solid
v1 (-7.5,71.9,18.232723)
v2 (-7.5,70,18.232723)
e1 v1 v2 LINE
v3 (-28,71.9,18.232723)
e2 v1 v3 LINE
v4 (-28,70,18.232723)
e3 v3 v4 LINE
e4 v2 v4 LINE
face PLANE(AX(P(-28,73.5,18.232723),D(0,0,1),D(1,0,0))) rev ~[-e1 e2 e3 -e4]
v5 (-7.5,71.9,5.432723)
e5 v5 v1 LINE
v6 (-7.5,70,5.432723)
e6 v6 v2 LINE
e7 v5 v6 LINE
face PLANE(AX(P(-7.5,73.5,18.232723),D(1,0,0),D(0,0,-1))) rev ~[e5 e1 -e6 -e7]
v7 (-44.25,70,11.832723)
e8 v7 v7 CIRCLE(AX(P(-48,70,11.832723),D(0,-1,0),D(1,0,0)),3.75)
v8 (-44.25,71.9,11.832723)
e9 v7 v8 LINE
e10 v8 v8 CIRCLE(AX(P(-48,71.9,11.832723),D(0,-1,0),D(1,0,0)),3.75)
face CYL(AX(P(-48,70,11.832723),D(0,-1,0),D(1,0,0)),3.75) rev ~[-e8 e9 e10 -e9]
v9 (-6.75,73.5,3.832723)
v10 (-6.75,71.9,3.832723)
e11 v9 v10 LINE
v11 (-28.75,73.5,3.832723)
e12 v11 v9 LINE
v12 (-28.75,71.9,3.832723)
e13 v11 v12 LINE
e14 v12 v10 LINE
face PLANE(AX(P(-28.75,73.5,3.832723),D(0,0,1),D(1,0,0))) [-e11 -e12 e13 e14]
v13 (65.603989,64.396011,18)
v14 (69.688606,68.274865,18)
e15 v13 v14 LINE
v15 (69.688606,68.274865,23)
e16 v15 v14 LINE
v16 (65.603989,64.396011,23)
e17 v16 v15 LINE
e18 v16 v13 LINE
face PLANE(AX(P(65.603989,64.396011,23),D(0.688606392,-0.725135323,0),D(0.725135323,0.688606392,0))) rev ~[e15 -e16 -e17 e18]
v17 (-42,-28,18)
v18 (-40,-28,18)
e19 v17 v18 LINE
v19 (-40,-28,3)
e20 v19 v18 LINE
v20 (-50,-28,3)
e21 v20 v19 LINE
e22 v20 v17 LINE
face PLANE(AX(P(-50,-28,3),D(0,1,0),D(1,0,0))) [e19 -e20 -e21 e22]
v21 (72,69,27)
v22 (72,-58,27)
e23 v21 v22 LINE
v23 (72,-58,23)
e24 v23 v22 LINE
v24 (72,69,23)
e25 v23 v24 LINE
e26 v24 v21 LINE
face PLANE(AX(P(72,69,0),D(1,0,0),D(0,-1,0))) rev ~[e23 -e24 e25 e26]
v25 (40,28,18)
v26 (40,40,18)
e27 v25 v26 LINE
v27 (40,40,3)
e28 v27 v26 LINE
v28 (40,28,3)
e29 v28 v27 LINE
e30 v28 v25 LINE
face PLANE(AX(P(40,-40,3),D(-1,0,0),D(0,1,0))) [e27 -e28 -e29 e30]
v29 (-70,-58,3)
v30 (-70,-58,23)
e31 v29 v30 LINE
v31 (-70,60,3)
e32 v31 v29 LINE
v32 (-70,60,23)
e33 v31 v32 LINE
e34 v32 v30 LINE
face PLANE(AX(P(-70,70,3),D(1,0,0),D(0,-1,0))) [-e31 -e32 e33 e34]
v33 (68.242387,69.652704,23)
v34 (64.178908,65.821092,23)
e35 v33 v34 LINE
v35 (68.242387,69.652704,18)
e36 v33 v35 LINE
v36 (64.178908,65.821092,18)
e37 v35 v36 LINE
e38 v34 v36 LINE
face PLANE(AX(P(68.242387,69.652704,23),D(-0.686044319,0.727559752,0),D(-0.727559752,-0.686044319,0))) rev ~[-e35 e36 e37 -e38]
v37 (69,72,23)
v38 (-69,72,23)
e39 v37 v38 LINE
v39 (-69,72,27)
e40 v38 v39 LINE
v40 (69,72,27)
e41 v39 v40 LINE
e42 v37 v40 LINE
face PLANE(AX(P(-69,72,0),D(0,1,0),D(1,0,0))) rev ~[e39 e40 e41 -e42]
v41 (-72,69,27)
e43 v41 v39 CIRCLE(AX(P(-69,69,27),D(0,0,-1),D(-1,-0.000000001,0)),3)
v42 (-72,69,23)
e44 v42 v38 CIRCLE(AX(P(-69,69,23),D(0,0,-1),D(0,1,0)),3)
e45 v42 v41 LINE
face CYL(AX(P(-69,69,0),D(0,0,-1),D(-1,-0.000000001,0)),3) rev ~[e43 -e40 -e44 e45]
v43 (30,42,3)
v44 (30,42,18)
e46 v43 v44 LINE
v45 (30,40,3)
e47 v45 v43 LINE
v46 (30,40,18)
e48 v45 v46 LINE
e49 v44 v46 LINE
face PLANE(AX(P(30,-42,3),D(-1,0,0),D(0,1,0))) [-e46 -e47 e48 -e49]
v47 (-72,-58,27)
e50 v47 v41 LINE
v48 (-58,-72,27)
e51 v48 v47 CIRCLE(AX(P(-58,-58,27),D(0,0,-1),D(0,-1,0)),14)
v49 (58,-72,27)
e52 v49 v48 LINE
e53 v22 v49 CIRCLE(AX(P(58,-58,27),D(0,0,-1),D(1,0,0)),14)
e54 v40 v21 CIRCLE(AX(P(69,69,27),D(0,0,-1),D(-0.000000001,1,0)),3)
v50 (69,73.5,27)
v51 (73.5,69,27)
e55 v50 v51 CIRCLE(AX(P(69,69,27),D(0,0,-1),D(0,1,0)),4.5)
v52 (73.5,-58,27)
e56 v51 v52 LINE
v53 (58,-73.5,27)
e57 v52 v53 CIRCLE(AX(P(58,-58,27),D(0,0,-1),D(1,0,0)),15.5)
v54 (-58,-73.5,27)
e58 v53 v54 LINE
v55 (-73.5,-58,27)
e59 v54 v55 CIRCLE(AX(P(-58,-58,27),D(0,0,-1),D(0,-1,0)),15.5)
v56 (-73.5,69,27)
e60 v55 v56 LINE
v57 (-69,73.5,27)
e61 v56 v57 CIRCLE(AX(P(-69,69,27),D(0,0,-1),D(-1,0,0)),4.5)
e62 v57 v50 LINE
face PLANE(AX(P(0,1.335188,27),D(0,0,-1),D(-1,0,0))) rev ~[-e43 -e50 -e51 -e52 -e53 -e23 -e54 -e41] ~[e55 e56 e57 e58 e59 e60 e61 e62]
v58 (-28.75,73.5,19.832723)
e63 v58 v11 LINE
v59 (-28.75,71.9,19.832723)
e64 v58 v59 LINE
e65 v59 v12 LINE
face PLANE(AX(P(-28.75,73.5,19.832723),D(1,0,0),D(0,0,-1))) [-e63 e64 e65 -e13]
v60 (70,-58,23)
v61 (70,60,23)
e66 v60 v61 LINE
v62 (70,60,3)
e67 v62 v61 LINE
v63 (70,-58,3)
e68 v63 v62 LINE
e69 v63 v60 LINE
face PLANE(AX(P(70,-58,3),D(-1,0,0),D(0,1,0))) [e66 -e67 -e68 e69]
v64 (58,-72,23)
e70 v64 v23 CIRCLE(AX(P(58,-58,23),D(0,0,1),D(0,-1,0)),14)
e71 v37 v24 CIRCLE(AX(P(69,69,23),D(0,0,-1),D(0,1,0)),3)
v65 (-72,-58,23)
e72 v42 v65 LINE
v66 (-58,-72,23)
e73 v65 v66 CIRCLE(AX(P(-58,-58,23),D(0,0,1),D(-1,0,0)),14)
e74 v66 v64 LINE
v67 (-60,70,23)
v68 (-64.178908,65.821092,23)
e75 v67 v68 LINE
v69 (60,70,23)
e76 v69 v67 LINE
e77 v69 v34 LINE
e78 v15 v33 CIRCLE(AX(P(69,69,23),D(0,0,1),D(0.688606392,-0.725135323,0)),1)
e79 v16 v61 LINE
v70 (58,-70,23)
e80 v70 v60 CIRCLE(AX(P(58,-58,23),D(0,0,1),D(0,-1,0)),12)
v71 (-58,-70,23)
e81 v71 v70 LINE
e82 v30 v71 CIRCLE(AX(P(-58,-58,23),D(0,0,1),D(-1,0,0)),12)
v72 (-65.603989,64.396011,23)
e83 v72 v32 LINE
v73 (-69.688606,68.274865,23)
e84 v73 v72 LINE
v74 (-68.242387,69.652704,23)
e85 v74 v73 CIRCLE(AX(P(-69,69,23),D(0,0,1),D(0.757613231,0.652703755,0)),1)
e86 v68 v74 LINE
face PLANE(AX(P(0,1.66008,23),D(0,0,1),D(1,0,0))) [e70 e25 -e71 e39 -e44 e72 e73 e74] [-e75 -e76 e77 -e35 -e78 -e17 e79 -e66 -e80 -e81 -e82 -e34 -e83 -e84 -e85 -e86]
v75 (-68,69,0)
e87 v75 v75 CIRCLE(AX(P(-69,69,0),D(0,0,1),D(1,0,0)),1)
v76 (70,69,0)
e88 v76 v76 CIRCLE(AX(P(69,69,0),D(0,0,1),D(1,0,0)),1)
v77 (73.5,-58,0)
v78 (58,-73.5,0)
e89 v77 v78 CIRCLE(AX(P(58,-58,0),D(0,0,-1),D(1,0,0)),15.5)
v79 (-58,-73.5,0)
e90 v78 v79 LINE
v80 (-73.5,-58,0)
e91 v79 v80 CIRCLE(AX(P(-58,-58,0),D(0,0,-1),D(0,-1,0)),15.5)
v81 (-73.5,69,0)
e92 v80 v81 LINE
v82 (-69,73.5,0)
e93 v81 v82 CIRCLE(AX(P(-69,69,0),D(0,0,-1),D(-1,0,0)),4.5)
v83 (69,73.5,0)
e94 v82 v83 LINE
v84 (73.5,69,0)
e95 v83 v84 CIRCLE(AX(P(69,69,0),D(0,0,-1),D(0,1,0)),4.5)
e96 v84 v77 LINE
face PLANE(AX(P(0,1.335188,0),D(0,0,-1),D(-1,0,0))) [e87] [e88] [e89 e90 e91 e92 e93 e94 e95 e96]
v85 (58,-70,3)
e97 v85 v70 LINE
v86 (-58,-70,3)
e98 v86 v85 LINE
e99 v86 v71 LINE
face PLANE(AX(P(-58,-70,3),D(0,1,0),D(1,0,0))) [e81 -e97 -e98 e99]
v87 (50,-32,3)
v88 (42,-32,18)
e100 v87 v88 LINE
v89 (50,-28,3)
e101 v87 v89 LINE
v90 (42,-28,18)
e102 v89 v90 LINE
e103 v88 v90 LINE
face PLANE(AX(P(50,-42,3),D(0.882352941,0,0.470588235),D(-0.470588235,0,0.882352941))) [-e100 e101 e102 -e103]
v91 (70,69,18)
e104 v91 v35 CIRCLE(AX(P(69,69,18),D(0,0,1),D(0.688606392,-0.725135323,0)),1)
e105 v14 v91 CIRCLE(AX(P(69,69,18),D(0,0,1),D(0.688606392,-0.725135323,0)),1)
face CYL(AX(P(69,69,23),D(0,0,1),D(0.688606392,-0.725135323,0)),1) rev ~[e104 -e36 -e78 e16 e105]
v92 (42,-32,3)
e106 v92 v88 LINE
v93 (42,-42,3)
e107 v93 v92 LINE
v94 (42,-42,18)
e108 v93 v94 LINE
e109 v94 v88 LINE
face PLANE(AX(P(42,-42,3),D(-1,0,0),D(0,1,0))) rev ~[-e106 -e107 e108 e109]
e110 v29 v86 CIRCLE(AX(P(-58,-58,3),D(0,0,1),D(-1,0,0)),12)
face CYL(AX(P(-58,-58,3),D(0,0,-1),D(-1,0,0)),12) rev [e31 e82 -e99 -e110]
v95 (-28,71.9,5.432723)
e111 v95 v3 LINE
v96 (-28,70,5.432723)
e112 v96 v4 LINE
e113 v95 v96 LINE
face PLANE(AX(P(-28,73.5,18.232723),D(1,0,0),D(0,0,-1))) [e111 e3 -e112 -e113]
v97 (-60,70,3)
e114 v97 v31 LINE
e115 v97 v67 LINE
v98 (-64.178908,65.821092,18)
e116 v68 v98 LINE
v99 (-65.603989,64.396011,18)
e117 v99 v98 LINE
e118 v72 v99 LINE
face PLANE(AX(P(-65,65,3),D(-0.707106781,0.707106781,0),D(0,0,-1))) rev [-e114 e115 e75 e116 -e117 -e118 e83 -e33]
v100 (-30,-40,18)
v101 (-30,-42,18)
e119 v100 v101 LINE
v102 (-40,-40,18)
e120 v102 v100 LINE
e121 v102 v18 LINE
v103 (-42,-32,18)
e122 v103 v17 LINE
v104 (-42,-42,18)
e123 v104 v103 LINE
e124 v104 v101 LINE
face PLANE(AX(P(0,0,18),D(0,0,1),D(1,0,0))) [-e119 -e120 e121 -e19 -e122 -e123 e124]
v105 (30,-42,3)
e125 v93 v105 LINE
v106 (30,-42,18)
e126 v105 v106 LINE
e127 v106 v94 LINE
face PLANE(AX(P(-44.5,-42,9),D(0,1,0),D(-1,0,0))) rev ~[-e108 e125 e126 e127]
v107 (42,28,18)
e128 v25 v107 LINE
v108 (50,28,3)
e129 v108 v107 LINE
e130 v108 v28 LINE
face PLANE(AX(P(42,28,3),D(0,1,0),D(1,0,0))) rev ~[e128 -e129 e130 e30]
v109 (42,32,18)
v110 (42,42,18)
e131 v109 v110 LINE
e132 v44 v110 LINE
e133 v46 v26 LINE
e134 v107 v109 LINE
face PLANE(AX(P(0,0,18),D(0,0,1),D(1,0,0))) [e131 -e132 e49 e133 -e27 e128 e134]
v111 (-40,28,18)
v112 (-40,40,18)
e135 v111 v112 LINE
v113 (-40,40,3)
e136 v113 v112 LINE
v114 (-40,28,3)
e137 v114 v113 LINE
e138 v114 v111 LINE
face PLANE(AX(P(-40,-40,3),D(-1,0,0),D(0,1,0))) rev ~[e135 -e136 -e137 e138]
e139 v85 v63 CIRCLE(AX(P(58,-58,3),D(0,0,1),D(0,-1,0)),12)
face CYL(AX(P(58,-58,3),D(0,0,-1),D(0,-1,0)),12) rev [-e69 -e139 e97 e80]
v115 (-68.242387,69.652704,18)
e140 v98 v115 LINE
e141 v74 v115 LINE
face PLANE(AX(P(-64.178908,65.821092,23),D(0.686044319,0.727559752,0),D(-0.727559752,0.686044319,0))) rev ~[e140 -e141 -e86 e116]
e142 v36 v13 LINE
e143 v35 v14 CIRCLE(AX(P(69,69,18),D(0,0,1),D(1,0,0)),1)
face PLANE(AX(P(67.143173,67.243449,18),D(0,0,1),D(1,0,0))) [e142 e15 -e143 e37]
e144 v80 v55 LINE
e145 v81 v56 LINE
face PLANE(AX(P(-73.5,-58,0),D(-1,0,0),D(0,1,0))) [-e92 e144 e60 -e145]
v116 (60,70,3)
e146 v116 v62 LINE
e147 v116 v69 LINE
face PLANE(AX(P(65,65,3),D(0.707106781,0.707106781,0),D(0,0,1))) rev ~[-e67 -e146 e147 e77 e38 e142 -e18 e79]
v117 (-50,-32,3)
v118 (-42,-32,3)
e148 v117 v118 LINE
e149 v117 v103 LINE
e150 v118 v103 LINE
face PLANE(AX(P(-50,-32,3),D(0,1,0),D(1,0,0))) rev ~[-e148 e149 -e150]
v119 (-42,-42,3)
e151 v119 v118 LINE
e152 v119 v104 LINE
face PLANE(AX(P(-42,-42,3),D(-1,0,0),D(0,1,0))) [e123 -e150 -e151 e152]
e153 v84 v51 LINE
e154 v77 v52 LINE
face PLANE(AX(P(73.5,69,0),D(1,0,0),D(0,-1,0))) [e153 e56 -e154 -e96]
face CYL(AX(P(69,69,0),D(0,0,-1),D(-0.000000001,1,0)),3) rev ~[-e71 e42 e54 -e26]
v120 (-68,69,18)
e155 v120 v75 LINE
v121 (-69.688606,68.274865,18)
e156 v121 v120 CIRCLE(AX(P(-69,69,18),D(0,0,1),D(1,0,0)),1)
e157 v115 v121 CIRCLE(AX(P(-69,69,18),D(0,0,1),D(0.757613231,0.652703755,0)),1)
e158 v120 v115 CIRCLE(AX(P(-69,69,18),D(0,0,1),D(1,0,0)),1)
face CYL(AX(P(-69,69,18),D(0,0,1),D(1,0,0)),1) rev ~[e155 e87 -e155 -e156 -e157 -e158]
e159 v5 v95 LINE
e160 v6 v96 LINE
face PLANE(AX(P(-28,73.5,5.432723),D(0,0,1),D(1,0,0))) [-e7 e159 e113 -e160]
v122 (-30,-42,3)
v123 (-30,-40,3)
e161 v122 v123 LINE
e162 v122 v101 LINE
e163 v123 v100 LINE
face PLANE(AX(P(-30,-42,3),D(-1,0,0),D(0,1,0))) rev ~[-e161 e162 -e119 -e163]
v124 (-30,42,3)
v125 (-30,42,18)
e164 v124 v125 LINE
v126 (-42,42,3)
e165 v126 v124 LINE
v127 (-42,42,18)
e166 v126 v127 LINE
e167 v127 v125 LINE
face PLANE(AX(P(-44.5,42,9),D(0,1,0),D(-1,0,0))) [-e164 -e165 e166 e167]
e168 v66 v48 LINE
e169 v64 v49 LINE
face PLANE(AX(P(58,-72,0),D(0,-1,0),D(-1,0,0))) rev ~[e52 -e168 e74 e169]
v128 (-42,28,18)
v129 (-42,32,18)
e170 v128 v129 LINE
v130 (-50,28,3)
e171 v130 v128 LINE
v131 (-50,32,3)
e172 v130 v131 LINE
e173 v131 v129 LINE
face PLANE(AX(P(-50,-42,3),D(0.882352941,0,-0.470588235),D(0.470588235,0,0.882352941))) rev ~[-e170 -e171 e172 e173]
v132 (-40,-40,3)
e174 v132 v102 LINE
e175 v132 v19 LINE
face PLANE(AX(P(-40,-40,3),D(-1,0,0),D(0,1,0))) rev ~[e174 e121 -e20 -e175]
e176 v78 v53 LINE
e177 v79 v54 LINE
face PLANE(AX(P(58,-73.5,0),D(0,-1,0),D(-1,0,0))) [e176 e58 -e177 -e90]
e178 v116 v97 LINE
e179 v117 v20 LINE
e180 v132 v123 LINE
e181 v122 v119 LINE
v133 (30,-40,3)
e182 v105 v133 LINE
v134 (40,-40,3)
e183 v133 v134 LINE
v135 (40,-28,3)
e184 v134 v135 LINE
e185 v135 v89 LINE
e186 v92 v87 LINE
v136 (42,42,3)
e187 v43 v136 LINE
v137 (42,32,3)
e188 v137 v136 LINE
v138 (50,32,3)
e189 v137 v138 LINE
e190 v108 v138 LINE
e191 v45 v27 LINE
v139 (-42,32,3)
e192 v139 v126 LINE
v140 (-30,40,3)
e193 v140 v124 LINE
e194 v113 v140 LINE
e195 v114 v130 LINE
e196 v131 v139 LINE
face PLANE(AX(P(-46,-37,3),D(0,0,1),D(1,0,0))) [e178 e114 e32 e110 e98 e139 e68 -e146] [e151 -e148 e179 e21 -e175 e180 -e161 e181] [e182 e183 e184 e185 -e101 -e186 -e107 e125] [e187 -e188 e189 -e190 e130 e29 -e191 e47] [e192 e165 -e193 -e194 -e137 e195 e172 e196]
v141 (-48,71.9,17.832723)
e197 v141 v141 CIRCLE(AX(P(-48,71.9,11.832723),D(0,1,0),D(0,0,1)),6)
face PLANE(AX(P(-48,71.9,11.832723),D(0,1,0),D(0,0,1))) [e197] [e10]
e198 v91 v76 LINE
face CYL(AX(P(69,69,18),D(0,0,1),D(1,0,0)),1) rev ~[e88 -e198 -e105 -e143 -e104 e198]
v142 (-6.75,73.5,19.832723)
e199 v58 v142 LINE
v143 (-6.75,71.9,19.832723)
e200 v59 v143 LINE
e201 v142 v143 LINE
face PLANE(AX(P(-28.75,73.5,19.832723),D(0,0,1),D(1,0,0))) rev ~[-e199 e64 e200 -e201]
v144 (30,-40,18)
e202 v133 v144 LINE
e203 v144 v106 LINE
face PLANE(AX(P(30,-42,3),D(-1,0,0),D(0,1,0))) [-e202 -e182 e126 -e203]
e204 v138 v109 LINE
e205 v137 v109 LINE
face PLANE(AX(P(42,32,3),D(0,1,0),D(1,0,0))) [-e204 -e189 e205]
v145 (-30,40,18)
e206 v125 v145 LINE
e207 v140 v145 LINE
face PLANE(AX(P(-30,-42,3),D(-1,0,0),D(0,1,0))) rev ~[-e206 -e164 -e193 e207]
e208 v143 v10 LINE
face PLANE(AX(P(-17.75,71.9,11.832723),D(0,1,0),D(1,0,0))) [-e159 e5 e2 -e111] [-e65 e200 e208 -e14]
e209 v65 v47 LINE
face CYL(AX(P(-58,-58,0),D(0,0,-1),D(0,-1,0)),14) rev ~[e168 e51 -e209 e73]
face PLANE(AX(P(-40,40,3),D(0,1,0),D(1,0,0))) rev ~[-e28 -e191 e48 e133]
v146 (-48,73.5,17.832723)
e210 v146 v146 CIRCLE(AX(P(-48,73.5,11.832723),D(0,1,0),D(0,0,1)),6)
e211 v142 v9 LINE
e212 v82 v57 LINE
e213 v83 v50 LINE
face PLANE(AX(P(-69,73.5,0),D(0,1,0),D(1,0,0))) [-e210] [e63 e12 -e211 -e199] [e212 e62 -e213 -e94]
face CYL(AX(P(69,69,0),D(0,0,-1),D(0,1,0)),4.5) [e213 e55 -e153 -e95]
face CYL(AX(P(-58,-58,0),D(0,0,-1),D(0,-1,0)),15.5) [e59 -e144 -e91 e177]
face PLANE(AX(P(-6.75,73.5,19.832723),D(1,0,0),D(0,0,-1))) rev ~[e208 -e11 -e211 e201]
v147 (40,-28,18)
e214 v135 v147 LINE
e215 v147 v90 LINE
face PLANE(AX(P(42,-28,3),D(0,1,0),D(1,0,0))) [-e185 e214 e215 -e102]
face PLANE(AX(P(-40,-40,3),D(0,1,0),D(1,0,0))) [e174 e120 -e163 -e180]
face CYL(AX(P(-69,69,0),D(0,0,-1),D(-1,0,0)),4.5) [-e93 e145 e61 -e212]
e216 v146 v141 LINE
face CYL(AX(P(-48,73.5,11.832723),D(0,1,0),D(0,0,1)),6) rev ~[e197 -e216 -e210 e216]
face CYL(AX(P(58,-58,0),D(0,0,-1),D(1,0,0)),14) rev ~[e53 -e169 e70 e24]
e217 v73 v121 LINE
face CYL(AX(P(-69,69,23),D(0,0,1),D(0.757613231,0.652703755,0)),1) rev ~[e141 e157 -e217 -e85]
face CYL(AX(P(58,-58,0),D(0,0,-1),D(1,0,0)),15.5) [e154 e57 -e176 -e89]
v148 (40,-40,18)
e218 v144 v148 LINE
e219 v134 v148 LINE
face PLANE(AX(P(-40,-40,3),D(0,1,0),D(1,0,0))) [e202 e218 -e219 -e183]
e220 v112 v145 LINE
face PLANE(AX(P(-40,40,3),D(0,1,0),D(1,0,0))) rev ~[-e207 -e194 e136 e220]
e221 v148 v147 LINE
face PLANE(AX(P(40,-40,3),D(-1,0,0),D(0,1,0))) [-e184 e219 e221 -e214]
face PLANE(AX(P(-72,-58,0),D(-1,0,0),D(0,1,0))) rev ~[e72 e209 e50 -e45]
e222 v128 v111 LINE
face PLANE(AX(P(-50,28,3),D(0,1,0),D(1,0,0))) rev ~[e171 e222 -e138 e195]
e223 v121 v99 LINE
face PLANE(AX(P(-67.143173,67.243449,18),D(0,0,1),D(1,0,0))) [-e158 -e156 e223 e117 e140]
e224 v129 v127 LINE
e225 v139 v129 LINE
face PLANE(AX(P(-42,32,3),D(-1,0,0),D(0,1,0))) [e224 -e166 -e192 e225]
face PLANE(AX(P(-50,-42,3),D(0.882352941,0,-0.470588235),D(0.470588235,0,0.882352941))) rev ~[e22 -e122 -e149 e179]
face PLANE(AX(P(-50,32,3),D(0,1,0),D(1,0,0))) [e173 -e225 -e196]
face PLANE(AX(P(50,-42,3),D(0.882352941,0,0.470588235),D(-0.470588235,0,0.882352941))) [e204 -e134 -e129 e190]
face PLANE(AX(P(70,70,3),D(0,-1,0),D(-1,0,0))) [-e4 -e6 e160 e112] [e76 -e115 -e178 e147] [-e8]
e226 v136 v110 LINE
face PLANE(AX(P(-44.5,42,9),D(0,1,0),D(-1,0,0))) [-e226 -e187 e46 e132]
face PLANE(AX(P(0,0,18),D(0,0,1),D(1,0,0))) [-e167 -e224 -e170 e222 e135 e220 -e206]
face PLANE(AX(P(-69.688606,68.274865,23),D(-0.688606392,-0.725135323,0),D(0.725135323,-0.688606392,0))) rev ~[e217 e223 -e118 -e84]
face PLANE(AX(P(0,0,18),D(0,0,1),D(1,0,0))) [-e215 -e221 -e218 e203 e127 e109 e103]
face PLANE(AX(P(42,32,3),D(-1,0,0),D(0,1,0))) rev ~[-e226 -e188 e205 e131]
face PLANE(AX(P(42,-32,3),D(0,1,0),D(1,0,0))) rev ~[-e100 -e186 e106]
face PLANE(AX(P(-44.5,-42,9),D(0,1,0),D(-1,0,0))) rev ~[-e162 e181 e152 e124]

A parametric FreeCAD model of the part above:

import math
import FreeCAD as App
import Part
import Sketcher
Q = App.Units.Quantity


def edges_at(feature, points):
    """Names of the edges that pass closest to the given points."""
    edges = feature.Shape.Edges
    near = lambda p: min(range(len(edges)), key=lambda i: edges[i].distToShape(Part.Vertex(*p))[0])
    return sorted({f"Edge{near(p) + 1}" for p in points})

doc = App.newDocument("Part")
params = doc.addObject("Spreadsheet::Sheet", "Params")
for row, (alias, value) in enumerate([
    ("sketch1_radius", "14 mm"),
    ("sketch1_width", "116 mm"),
    ("sketch1_height", "130 mm"),
    ("pad1_length", "3 mm"),
    ("sketch2_radius", "14 mm"),
    ("sketch2_radius2", "12 mm"),
    ("sketch2_width", "116 mm"),
    ("sketch2_height", "130 mm"),
    ("sketch2_height2", "128 mm"),
    ("pad2_length", "20 mm"),
    ("chamfer_size", "10 mm"),
    ("sketch3_width", "84 mm"),
    ("sketch3_width2", "80 mm"),
    ("pad3_length", "15 mm"),
    ("sketch4_width", "8 mm"),
    ("sketch4_height", "15 mm"),
    ("pad4_length", "84 mm"),
    ("sketch5_width", "8 mm"),
    ("sketch5_width2", "60 mm"),
    ("sketch5_height", "10 mm"),
    ("sketch5_height2", "56 mm"),
    ("sketch5_height3", "84 mm"),
    ("pocket1_length", "72 mm"),
    ("fillet_radius", "3 mm"),
    ("sketch6_radius", "14 mm"),
    ("sketch6_radius2", "3 mm"),
    ("sketch6_radius3", "4.5 mm"),
    ("sketch6_width", "138 mm"),
    ("sketch6_height", "127 mm"),
    ("pad5_length", "27 mm"),
    ("sketch7_diameter", "7.5 mm"),
    ("pocket2_length", "26 mm"),
    ("sketch8_radius", "1 mm"),
    ("pocket3_length", "5 mm"),
    ("sketch9_diameter", "2 mm"),
    ("pocket4_length", "33 mm"),
    ("sketch10_diameter", "12 mm"),
    ("pocket5_length", "1.6 mm"),
    ("sketch11_width", "20.5 mm"),
    ("sketch11_height", "12.8 mm"),
    ("pocket6_length", "9.6 mm"),
    ("sketch12_width", "22 mm"),
    ("sketch12_height", "16 mm"),
    ("pocket7_length", "1.6 mm"),
    ("sketch13_width", "84 mm"),
    ("sketch13_height", "56 mm"),
    ("pocket8_length", "15 mm"),
], start=1):
    params.set(f"A{row}", alias)
    params.set(f"B{row}", "=" + value)
    params.setAlias(f"B{row}", alias)

body = doc.addObject("PartDesign::Body", "Body")

# Sketch on XY plane
sketch1 = body.newObject("Sketcher::SketchObject", "Sketch")
sketch1.AttachmentSupport = (doc.getObject("XY_Plane"), [""])
sketch1.MapMode = "FlatFace"
sketch1.addGeometry([
    Part.LineSegment(App.Vector(-58, -72, 0), App.Vector(58, -72, 0)),  # 0
    Part.ArcOfCircle(Part.Circle(App.Vector(58, -58, 0), App.Vector(0, 0, 1), 14), math.radians(-90), math.radians(0)),  # 1
    Part.LineSegment(App.Vector(72, -58, 0), App.Vector(72, 72, 0)),  # 2
    Part.LineSegment(App.Vector(72, 72, 0), App.Vector(-72, 72, 0)),  # 3
    Part.LineSegment(App.Vector(-72, 72, 0), App.Vector(-72, -58, 0)),  # 4
    Part.ArcOfCircle(Part.Circle(App.Vector(-58, -58, 0), App.Vector(0, 0, 1), 14), math.radians(180), math.radians(270)),  # 5
], False)
sketch1.addConstraint([
    Sketcher.Constraint("Tangent", 0, 2, 1, 1),
    Sketcher.Constraint("Tangent", 1, 2, 2, 1),
    Sketcher.Constraint("Coincident", 2, 2, 3, 1),
    Sketcher.Constraint("Coincident", 3, 2, 4, 1),
    Sketcher.Constraint("Tangent", 4, 2, 5, 1),
    Sketcher.Constraint("Tangent", 5, 2, 0, 1),
    Sketcher.Constraint("Horizontal", 0),
    Sketcher.Constraint("Vertical", 2),
    Sketcher.Constraint("Horizontal", 3),
    Sketcher.Constraint("Vertical", 4),
    Sketcher.Constraint("Equal", 1, 5),
    Sketcher.Constraint("Radius", 1, Q("14 mm")),
    Sketcher.Constraint("DistanceX", 0, 1, 0, 2, Q("116 mm")),
    Sketcher.Constraint("DistanceY", 2, 1, 2, 2, Q("130 mm")),
    Sketcher.Constraint("DistanceX", -1, 1, 1, 3, Q("58 mm")),
    Sketcher.Constraint("DistanceY", 1, 3, -1, 1, Q("58 mm")),
])
sketch1.setExpression("Constraints[11]", "Params.sketch1_radius")
sketch1.setExpression("Constraints[12]", "Params.sketch1_width")
sketch1.setExpression("Constraints[13]", "Params.sketch1_height")
pad1 = body.newObject("PartDesign::Pad", "Pad")
pad1.Profile = sketch1
pad1.setExpression("Length", "Params.pad1_length")

# Sketch on XY plane
sketch2 = body.newObject("Sketcher::SketchObject", "Sketch001")
sketch2.AttachmentSupport = (doc.getObject("XY_Plane"), [""])
sketch2.MapMode = "FlatFace"
sketch2.AttachmentOffset = App.Placement(App.Vector(0, 0, 3), App.Rotation())
sketch2.addGeometry([
    Part.LineSegment(App.Vector(-72, 72, 0), App.Vector(-72, -58, 0)),  # 0
    Part.ArcOfCircle(Part.Circle(App.Vector(-58, -58, 0), App.Vector(0, 0, 1), 14), math.radians(180), math.radians(270)),  # 1
    Part.LineSegment(App.Vector(-58, -72, 0), App.Vector(58, -72, 0)),  # 2
    Part.ArcOfCircle(Part.Circle(App.Vector(58, -58, 0), App.Vector(0, 0, 1), 14), math.radians(-90), math.radians(0)),  # 3
    Part.LineSegment(App.Vector(72, -58, 0), App.Vector(72, 72, 0)),  # 4
    Part.LineSegment(App.Vector(72, 72, 0), App.Vector(-72, 72, 0)),  # 5
    Part.LineSegment(App.Vector(-70, -58, 0), App.Vector(-70, 70, 0)),  # 6
    Part.LineSegment(App.Vector(-70, 70, 0), App.Vector(70, 70, 0)),  # 7
    Part.LineSegment(App.Vector(70, 70, 0), App.Vector(70, -58, 0)),  # 8
    Part.ArcOfCircle(Part.Circle(App.Vector(58, -58, 0), App.Vector(0, 0, 1), 12), math.radians(-90), math.radians(0)),  # 9
    Part.LineSegment(App.Vector(58, -70, 0), App.Vector(-58, -70, 0)),  # 10
    Part.ArcOfCircle(Part.Circle(App.Vector(-58, -58, 0), App.Vector(0, 0, 1), 12), math.radians(-180), math.radians(-90)),  # 11
], False)
sketch2.addConstraint([
    Sketcher.Constraint("Tangent", 0, 2, 1, 1),
    Sketcher.Constraint("Tangent", 1, 2, 2, 1),
    Sketcher.Constraint("Tangent", 2, 2, 3, 1),
    Sketcher.Constraint("Tangent", 3, 2, 4, 1),
    Sketcher.Constraint("Coincident", 4, 2, 5, 1),
    Sketcher.Constraint("Coincident", 5, 2, 0, 1),
    Sketcher.Constraint("Coincident", 6, 2, 7, 1),
    Sketcher.Constraint("Coincident", 7, 2, 8, 1),
    Sketcher.Constraint("Tangent", 8, 2, 9, 2),
    Sketcher.Constraint("Tangent", 9, 1, 10, 1),
    Sketcher.Constraint("Tangent", 10, 2, 11, 2),
    Sketcher.Constraint("Tangent", 11, 1, 6, 1),
    Sketcher.Constraint("Vertical", 0),
    Sketcher.Constraint("Horizontal", 2),
    Sketcher.Constraint("Vertical", 4),
    Sketcher.Constraint("Horizontal", 5),
    Sketcher.Constraint("Vertical", 6),
    Sketcher.Constraint("Horizontal", 7),
    Sketcher.Constraint("Vertical", 8),
    Sketcher.Constraint("Horizontal", 10),
    Sketcher.Constraint("Coincident", 9, 3, 3, 3),
    Sketcher.Constraint("Coincident", 11, 3, 1, 3),
    Sketcher.Constraint("Equal", 1, 3),
    Sketcher.Constraint("Radius", 1, Q("14 mm")),
    Sketcher.Constraint("Radius", 9, Q("12 mm")),
    Sketcher.Constraint("DistanceX", 2, 1, 2, 2, Q("116 mm")),
    Sketcher.Constraint("DistanceY", 0, 2, 0, 1, Q("130 mm")),
    Sketcher.Constraint("DistanceY", 6, 1, 6, 2, Q("128 mm")),
    Sketcher.Constraint("DistanceX", 1, 3, -1, 1, Q("58 mm")),
    Sketcher.Constraint("DistanceY", 1, 3, -1, 1, Q("58 mm")),
])
sketch2.setExpression("Constraints[23]", "Params.sketch2_radius")
sketch2.setExpression("Constraints[24]", "Params.sketch2_radius2")
sketch2.setExpression("Constraints[25]", "Params.sketch2_width")
sketch2.setExpression("Constraints[26]", "Params.sketch2_height")
sketch2.setExpression("Constraints[27]", "Params.sketch2_height2")
pad2 = body.newObject("PartDesign::Pad", "Pad001")
pad2.Profile = sketch2
pad2.setExpression("Length", "Params.pad2_length")
doc.recompute()

chamfer = body.newObject("PartDesign::Chamfer", "Chamfer")
chamfer.Base = (pad2, edges_at(pad2, [(-70, 70, 13), (70, 70, 13)]))
chamfer.setExpression("Size", "Params.chamfer_size")

# Sketch on XY plane
sketch3 = body.newObject("Sketcher::SketchObject", "Sketch002")
sketch3.AttachmentSupport = (doc.getObject("XY_Plane"), [""])
sketch3.MapMode = "FlatFace"
sketch3.AttachmentOffset = App.Placement(App.Vector(0, 0, 3), App.Rotation())
sketch3.addGeometry([
    Part.LineSegment(App.Vector(-42, 42, 0), App.Vector(-42, -42, 0)),  # 0
    Part.LineSegment(App.Vector(-42, -42, 0), App.Vector(42, -42, 0)),  # 1
    Part.LineSegment(App.Vector(42, -42, 0), App.Vector(42, 42, 0)),  # 2
    Part.LineSegment(App.Vector(42, 42, 0), App.Vector(-42, 42, 0)),  # 3
    Part.LineSegment(App.Vector(40, -40, 0), App.Vector(-40, -40, 0)),  # 4
    Part.LineSegment(App.Vector(-40, -40, 0), App.Vector(-40, 40, 0)),  # 5
    Part.LineSegment(App.Vector(-40, 40, 0), App.Vector(40, 40, 0)),  # 6
    Part.LineSegment(App.Vector(40, 40, 0), App.Vector(40, -40, 0)),  # 7
], False)
sketch3.addConstraint([
    Sketcher.Constraint("Coincident", 0, 2, 1, 1),
    Sketcher.Constraint("Coincident", 1, 2, 2, 1),
    Sketcher.Constraint("Coincident", 2, 2, 3, 1),
    Sketcher.Constraint("Coincident", 3, 2, 0, 1),
    Sketcher.Constraint("Coincident", 4, 2, 5, 1),
    Sketcher.Constraint("Coincident", 5, 2, 6, 1),
    Sketcher.Constraint("Coincident", 6, 2, 7, 1),
    Sketcher.Constraint("Coincident", 7, 2, 4, 1),
    Sketcher.Constraint("Vertical", 0),
    Sketcher.Constraint("Horizontal", 1),
    Sketcher.Constraint("Vertical", 2),
    Sketcher.Constraint("Horizontal", 3),
    Sketcher.Constraint("Horizontal", 4),
    Sketcher.Constraint("Vertical", 5),
    Sketcher.Constraint("Horizontal", 6),
    Sketcher.Constraint("Vertical", 7),
    Sketcher.Constraint("Symmetric", 0, 2, 2, 2, -1, 1),
    Sketcher.Constraint("Symmetric", 4, 2, 6, 2, -1, 1),
    Sketcher.Constraint("Equal", 3, 0),
    Sketcher.Constraint("Equal", 6, 5),
    Sketcher.Constraint("DistanceX", 1, 1, 1, 2, Q("84 mm")),
    Sketcher.Constraint("DistanceX", 4, 2, 4, 1, Q("80 mm")),
])
sketch3.setExpression("Constraints[20]", "Params.sketch3_width")
sketch3.setExpression("Constraints[21]", "Params.sketch3_width2")
pad3 = body.newObject("PartDesign::Pad", "Pad002")
pad3.Profile = sketch3
pad3.setExpression("Length", "Params.pad3_length")

# Sketch on XZ plane
sketch4 = body.newObject("Sketcher::SketchObject", "Sketch003")
sketch4.AttachmentSupport = (doc.getObject("XZ_Plane"), [""])
sketch4.MapMode = "FlatFace"
sketch4.AttachmentOffset = App.Placement(App.Vector(0, 0, 42), App.Rotation())
sketch4.addGeometry([
    Part.LineSegment(App.Vector(-50, 3, 0), App.Vector(-42, 3, 0)),  # 0
    Part.LineSegment(App.Vector(-42, 3, 0), App.Vector(-42, 18, 0)),  # 1
    Part.LineSegment(App.Vector(-42, 18, 0), App.Vector(-50, 3, 0)),  # 2
    Part.LineSegment(App.Vector(42, 18, 0), App.Vector(42, 3, 0)),  # 3
    Part.LineSegment(App.Vector(42, 3, 0), App.Vector(50, 3, 0)),  # 4
    Part.LineSegment(App.Vector(50, 3, 0), App.Vector(42, 18, 0)),  # 5
], False)
sketch4.addConstraint([
    Sketcher.Constraint("Coincident", 0, 2, 1, 1),
    Sketcher.Constraint("Coincident", 1, 2, 2, 1),
    Sketcher.Constraint("Coincident", 2, 2, 0, 1),
    Sketcher.Constraint("Coincident", 3, 2, 4, 1),
    Sketcher.Constraint("Coincident", 4, 2, 5, 1),
    Sketcher.Constraint("Coincident", 5, 2, 3, 1),
    Sketcher.Constraint("Horizontal", 0),
    Sketcher.Constraint("Vertical", 1),
    Sketcher.Constraint("Vertical", 3),
    Sketcher.Constraint("Horizontal", 4),
    Sketcher.Constraint("Symmetric", 0, 2, 3, 2, -2),
    Sketcher.Constraint("Horizontal", 1, 2, 5, 2),
    Sketcher.Constraint("Equal", 0, 4),
    Sketcher.Constraint("DistanceX", 0, 1, 0, 2, Q("8 mm")),
    Sketcher.Constraint("DistanceY", 1, 1, 1, 2, Q("15 mm")),
    Sketcher.Constraint("DistanceX", 0, 2, -1, 1, Q("42 mm")),
    Sketcher.Constraint("DistanceY", -1, 1, 0, 2, Q("3 mm")),
])
sketch4.setExpression("Constraints[13]", "Params.sketch4_width")
sketch4.setExpression("Constraints[14]", "Params.sketch4_height")
pad4 = body.newObject("PartDesign::Pad", "Pad003")
pad4.Profile = sketch4
pad4.setExpression("Length", "Params.pad4_length")
pad4.Reversed = True

# Sketch on XY plane
sketch5 = body.newObject("Sketcher::SketchObject", "Sketch004")
sketch5.AttachmentSupport = (doc.getObject("XY_Plane"), [""])
sketch5.MapMode = "FlatFace"
sketch5.AttachmentOffset = App.Placement(App.Vector(0, 0, 3), App.Rotation())
sketch5.addGeometry([
    Part.LineSegment(App.Vector(-50, 42, 0), App.Vector(-50, 32, 0)),  # 0
    Part.LineSegment(App.Vector(-50, 32, 0), App.Vector(-42, 32, 0)),  # 1
    Part.LineSegment(App.Vector(-42, 32, 0), App.Vector(-42, 42, 0)),  # 2
    Part.LineSegment(App.Vector(-42, 42, 0), App.Vector(-50, 42, 0)),  # 3
    Part.LineSegment(App.Vector(-50, 28, 0), App.Vector(-50, -28, 0)),  # 4
    Part.LineSegment(App.Vector(-50, -28, 0), App.Vector(-42, -28, 0)),  # 5
    Part.LineSegment(App.Vector(-42, -28, 0), App.Vector(-42, 28, 0)),  # 6
    Part.LineSegment(App.Vector(-42, 28, 0), App.Vector(-50, 28, 0)),  # 7
    Part.LineSegment(App.Vector(-50, -32, 0), App.Vector(-50, -42, 0)),  # 8
    Part.LineSegment(App.Vector(-50, -42, 0), App.Vector(-42, -42, 0)),  # 9
    Part.LineSegment(App.Vector(-42, -42, 0), App.Vector(-42, -32, 0)),  # 10
    Part.LineSegment(App.Vector(-42, -32, 0), App.Vector(-50, -32, 0)),  # 11
    Part.LineSegment(App.Vector(42, -32, 0), App.Vector(42, -42, 0)),  # 12
    Part.LineSegment(App.Vector(42, -42, 0), App.Vector(50, -42, 0)),  # 13
    Part.LineSegment(App.Vector(50, -42, 0), App.Vector(50, -32, 0)),  # 14
    Part.LineSegment(App.Vector(50, -32, 0), App.Vector(42, -32, 0)),  # 15
    Part.LineSegment(App.Vector(42, 28, 0), App.Vector(42, -28, 0)),  # 16
    Part.LineSegment(App.Vector(42, -28, 0), App.Vector(50, -28, 0)),  # 17
    Part.LineSegment(App.Vector(50, -28, 0), App.Vector(50, 28, 0)),  # 18
    Part.LineSegment(App.Vector(50, 28, 0), App.Vector(42, 28, 0)),  # 19
    Part.LineSegment(App.Vector(42, 42, 0), App.Vector(42, 32, 0)),  # 20
    Part.LineSegment(App.Vector(42, 32, 0), App.Vector(50, 32, 0)),  # 21
    Part.LineSegment(App.Vector(50, 32, 0), App.Vector(50, 42, 0)),  # 22
    Part.LineSegment(App.Vector(50, 42, 0), App.Vector(42, 42, 0)),  # 23
    Part.LineSegment(App.Vector(-30, 42, 0), App.Vector(-30, -42, 0)),  # 24
    Part.LineSegment(App.Vector(-30, -42, 0), App.Vector(30, -42, 0)),  # 25
    Part.LineSegment(App.Vector(30, -42, 0), App.Vector(30, 42, 0)),  # 26
    Part.LineSegment(App.Vector(30, 42, 0), App.Vector(-30, 42, 0)),  # 27
], False)
sketch5.addConstraint([
    Sketcher.Constraint("Coincident", 0, 2, 1, 1),
    Sketcher.Constraint("Coincident", 1, 2, 2, 1),
    Sketcher.Constraint("Coincident", 2, 2, 3, 1),
    Sketcher.Constraint("Coincident", 3, 2, 0, 1),
    Sketcher.Constraint("Coincident", 4, 2, 5, 1),
    Sketcher.Constraint("Coincident", 5, 2, 6, 1),
    Sketcher.Constraint("Coincident", 6, 2, 7, 1),
    Sketcher.Constraint("Coincident", 7, 2, 4, 1),
    Sketcher.Constraint("Coincident", 8, 2, 9, 1),
    Sketcher.Constraint("Coincident", 9, 2, 10, 1),
    Sketcher.Constraint("Coincident", 10, 2, 11, 1),
    Sketcher.Constraint("Coincident", 11, 2, 8, 1),
    Sketcher.Constraint("Coincident", 12, 2, 13, 1),
    Sketcher.Constraint("Coincident", 13, 2, 14, 1),
    Sketcher.Constraint("Coincident", 14, 2, 15, 1),
    Sketcher.Constraint("Coincident", 15, 2, 12, 1),
    Sketcher.Constraint("Coincident", 16, 2, 17, 1),
    Sketcher.Constraint("Coincident", 17, 2, 18, 1),
    Sketcher.Constraint("Coincident", 18, 2, 19, 1),
    Sketcher.Constraint("Coincident", 19, 2, 16, 1),
    Sketcher.Constraint("Coincident", 20, 2, 21, 1),
    Sketcher.Constraint("Coincident", 21, 2, 22, 1),
    Sketcher.Constraint("Coincident", 22, 2, 23, 1),
    Sketcher.Constraint("Coincident", 23, 2, 20, 1),
    Sketcher.Constraint("Coincident", 24, 2, 25, 1),
    Sketcher.Constraint("Coincident", 25, 2, 26, 1),
    Sketcher.Constraint("Coincident", 26, 2, 27, 1),
    Sketcher.Constraint("Coincident", 27, 2, 24, 1),
    Sketcher.Constraint("Vertical", 0),
    Sketcher.Constraint("Horizontal", 1),
    Sketcher.Constraint("Vertical", 2),
    Sketcher.Constraint("Horizontal", 3),
    Sketcher.Constraint("Vertical", 4),
    Sketcher.Constraint("Horizontal", 5),
    Sketcher.Constraint("Vertical", 6),
    Sketcher.Constraint("Horizontal", 7),
    Sketcher.Constraint("Vertical", 8),
    Sketcher.Constraint("Horizontal", 9),
    Sketcher.Constraint("Vertical", 10),
    Sketcher.Constraint("Horizontal", 11),
    Sketcher.Constraint("Vertical", 12),
    Sketcher.Constraint("Horizontal", 13),
    Sketcher.Constraint("Vertical", 14),
    Sketcher.Constraint("Horizontal", 15),
    Sketcher.Constraint("Vertical", 16),
    Sketcher.Constraint("Horizontal", 17),
    Sketcher.Constraint("Vertical", 18),
    Sketcher.Constraint("Horizontal", 19),
    Sketcher.Constraint("Vertical", 20),
    Sketcher.Constraint("Horizontal", 21),
    Sketcher.Constraint("Vertical", 22),
    Sketcher.Constraint("Horizontal", 23),
    Sketcher.Constraint("Vertical", 24),
    Sketcher.Constraint("Horizontal", 25),
    Sketcher.Constraint("Vertical", 26),
    Sketcher.Constraint("Horizontal", 27),
    Sketcher.Constraint("Symmetric", 2, 2, 12, 2, -1, 1),
    Sketcher.Constraint("Symmetric", 0, 2, 14, 2, -1, 1),
    Sketcher.Constraint("Symmetric", 6, 2, 16, 2, -1, 1),
    Sketcher.Constraint("Symmetric", 4, 2, 18, 2, -1, 1),
    Sketcher.Constraint("Symmetric", 10, 2, 20, 2, -1, 1),
    Sketcher.Constraint("Symmetric", 8, 2, 22, 2, -1, 1),
    Sketcher.Constraint("Symmetric", 24, 2, 26, 2, -1, 1),
    Sketcher.Constraint("Symmetric", 9, 2, 12, 2, -2),
    Sketcher.Constraint("Symmetric", 11, 2, 14, 2, -2),
    Sketcher.Constraint("Horizontal", 5, 2, 16, 2),
    Sketcher.Constraint("Horizontal", 13, 2, 24, 2),
    Sketcher.Constraint("Vertical", 3, 2, 4, 2),
    Sketcher.Constraint("Vertical", 2, 2, 5, 2),
    Sketcher.Constraint("DistanceX", 1, 1, 1, 2, Q("8 mm")),
    Sketcher.Constraint("DistanceX", 25, 1, 25, 2, Q("60 mm")),
    Sketcher.Constraint("DistanceY", 0, 2, 0, 1, Q("10 mm")),
    Sketcher.Constraint("DistanceY", 4, 2, 4, 1, Q("56 mm")),
    Sketcher.Constraint("DistanceY", 24, 2, 24, 1, Q("84 mm")),
    Sketcher.Constraint("DistanceX", 0, 2, -1, 1, Q("50 mm")),
])
sketch5.setExpression("Constraints[69]", "Params.sketch5_width")
sketch5.setExpression("Constraints[70]", "Params.sketch5_width2")
sketch5.setExpression("Constraints[71]", "Params.sketch5_height")
sketch5.setExpression("Constraints[72]", "Params.sketch5_height2")
sketch5.setExpression("Constraints[73]", "Params.sketch5_height3")
pocket1 = body.newObject("PartDesign::Pocket", "Pocket")
pocket1.Profile = sketch5
pocket1.setExpression("Length", "Params.pocket1_length")
pocket1.Reversed = True
doc.recompute()

fillet = body.newObject("PartDesign::Fillet", "Fillet")
fillet.Base = (pocket1, edges_at(pocket1, [(-72, 72, 11.5), (72, 72, 11.5)]))
fillet.setExpression("Radius", "Params.fillet_radius")

# Sketch on XY plane
sketch6 = body.newObject("Sketcher::SketchObject", "Sketch005")
sketch6.AttachmentSupport = (doc.getObject("XY_Plane"), [""])
sketch6.MapMode = "FlatFace"
sketch6.addGeometry([
    Part.LineSegment(App.Vector(-73.5, -58, 0), App.Vector(-73.5, 69, 0)),  # 0
    Part.ArcOfCircle(Part.Circle(App.Vector(-69, 69, 0), App.Vector(0, 0, 1), 4.5), math.radians(90), math.radians(180)),  # 1
    Part.LineSegment(App.Vector(-69, 73.5, 0), App.Vector(69, 73.5, 0)),  # 2
    Part.ArcOfCircle(Part.Circle(App.Vector(69, 69, 0), App.Vector(0, 0, 1), 4.5), math.radians(0), math.radians(90)),  # 3
    Part.LineSegment(App.Vector(73.5, 69, 0), App.Vector(73.5, -58, 0)),  # 4
    Part.ArcOfCircle(Part.Circle(App.Vector(58, -58, 0), App.Vector(0, 0, 1), 15.5), math.radians(-90), math.radians(0)),  # 5
    Part.LineSegment(App.Vector(58, -73.5, 0), App.Vector(-58, -73.5, 0)),  # 6
    Part.ArcOfCircle(Part.Circle(App.Vector(-58, -58, 0), App.Vector(0, 0, 1), 15.5), math.radians(-180), math.radians(-90)),  # 7
    Part.LineSegment(App.Vector(-72, 69, 0), App.Vector(-72, -58, 0)),  # 8
    Part.ArcOfCircle(Part.Circle(App.Vector(-58, -58, 0), App.Vector(0, 0, 1), 14), math.radians(180), math.radians(270)),  # 9
    Part.LineSegment(App.Vector(-58, -72, 0), App.Vector(58, -72, 0)),  # 10
    Part.ArcOfCircle(Part.Circle(App.Vector(58, -58, 0), App.Vector(0, 0, 1), 14), math.radians(-90), math.radians(0)),  # 11
    Part.LineSegment(App.Vector(72, -58, 0), App.Vector(72, 69, 0)),  # 12
    Part.ArcOfCircle(Part.Circle(App.Vector(69, 69, 0), App.Vector(0, 0, 1), 3), math.radians(0), math.radians(90)),  # 13
    Part.LineSegment(App.Vector(69, 72, 0), App.Vector(-69, 72, 0)),  # 14
    Part.ArcOfCircle(Part.Circle(App.Vector(-69, 69, 0), App.Vector(0, 0, 1), 3), math.radians(90), math.radians(180)),  # 15
], False)
sketch6.addConstraint([
    Sketcher.Constraint("Tangent", 0, 2, 1, 2),
    Sketcher.Constraint("Tangent", 1, 1, 2, 1),
    Sketcher.Constraint("Tangent", 2, 2, 3, 2),
    Sketcher.Constraint("Tangent", 3, 1, 4, 1),
    Sketcher.Constraint("Tangent", 4, 2, 5, 2),
    Sketcher.Constraint("Tangent", 5, 1, 6, 1),
    Sketcher.Constraint("Tangent", 6, 2, 7, 2),
    Sketcher.Constraint("Tangent", 7, 1, 0, 1),
    Sketcher.Constraint("Tangent", 8, 2, 9, 1),
    Sketcher.Constraint("Tangent", 9, 2, 10, 1),
    Sketcher.Constraint("Tangent", 10, 2, 11, 1),
    Sketcher.Constraint("Tangent", 11, 2, 12, 1),
    Sketcher.Constraint("Tangent", 12, 2, 13, 1),
    Sketcher.Constraint("Tangent", 13, 2, 14, 1),
    Sketcher.Constraint("Tangent", 14, 2, 15, 1),
    Sketcher.Constraint("Tangent", 15, 2, 8, 1),
    Sketcher.Constraint("Vertical", 0),
    Sketcher.Constraint("Horizontal", 2),
    Sketcher.Constraint("Vertical", 4),
    Sketcher.Constraint("Horizontal", 6),
    Sketcher.Constraint("Vertical", 8),
    Sketcher.Constraint("Horizontal", 10),
    Sketcher.Constraint("Vertical", 12),
    Sketcher.Constraint("Horizontal", 14),
    Sketcher.Constraint("Coincident", 9, 3, 7, 3),
    Sketcher.Constraint("Coincident", 11, 3, 5, 3),
    Sketcher.Constraint("Coincident", 13, 3, 3, 3),
    Sketcher.Constraint("Equal", 1, 3),
    Sketcher.Constraint("Equal", 5, 7),
    Sketcher.Constraint("Equal", 13, 15),
    Sketcher.Constraint("Radius", 9, Q("14 mm")),
    Sketcher.Constraint("Radius", 13, Q("3 mm")),
    Sketcher.Constraint("Radius", 1, Q("4.5 mm")),
    Sketcher.Constraint("DistanceX", 2, 1, 2, 2, Q("138 mm")),
    Sketcher.Constraint("DistanceY", 0, 1, 0, 2, Q("127 mm")),
    Sketcher.Constraint("DistanceX", 1, 3, -1, 1, Q("69 mm")),
    Sketcher.Constraint("DistanceY", -1, 1, 1, 3, Q("69 mm")),
])
sketch6.setExpression("Constraints[30]", "Params.sketch6_radius")
sketch6.setExpression("Constraints[31]", "Params.sketch6_radius2")
sketch6.setExpression("Constraints[32]", "Params.sketch6_radius3")
sketch6.setExpression("Constraints[33]", "Params.sketch6_width")
sketch6.setExpression("Constraints[34]", "Params.sketch6_height")
pad5 = body.newObject("PartDesign::Pad", "Pad004")
pad5.Profile = sketch6
pad5.setExpression("Length", "Params.pad5_length")

# Sketch on XZ plane
sketch7 = body.newObject("Sketcher::SketchObject", "Sketch006")
sketch7.AttachmentSupport = (doc.getObject("XZ_Plane"), [""])
sketch7.MapMode = "FlatFace"
sketch7.AttachmentOffset = App.Placement(App.Vector(0, 0, -70), App.Rotation())
sketch7.addGeometry(Part.Circle(App.Vector(-48, 11.8, 0), App.Vector(0, 0, 1), 3.8), False)
sketch7.addConstraint([
    Sketcher.Constraint("Diameter", 0, Q("7.5 mm")),
    Sketcher.Constraint("DistanceX", 0, 3, -1, 1, Q("48 mm")),
    Sketcher.Constraint("DistanceY", -1, 1, 0, 3, Q("11.832723 mm")),
])
sketch7.setExpression("Constraints[0]", "Params.sketch7_diameter")
pocket2 = body.newObject("PartDesign::Pocket", "Pocket001")
pocket2.Profile = sketch7
pocket2.setExpression("Length", "Params.pocket2_length")

# Sketch on XY plane
sketch8 = body.newObject("Sketcher::SketchObject", "Sketch007")
sketch8.AttachmentSupport = (doc.getObject("XY_Plane"), [""])
sketch8.MapMode = "FlatFace"
sketch8.AttachmentOffset = App.Placement(App.Vector(0, 0, 23), App.Rotation())
sketch8.addGeometry([
    Part.LineSegment(App.Vector(-69.7, 68.3, 0), App.Vector(-65.6, 64.4, 0)),  # 0
    Part.LineSegment(App.Vector(-65.6, 64.4, 0), App.Vector(-64.2, 65.8, 0)),  # 1
    Part.LineSegment(App.Vector(-64.2, 65.8, 0), App.Vector(-68.2, 69.7, 0)),  # 2
    Part.ArcOfCircle(Part.Circle(App.Vector(-69, 69, 0), App.Vector(0, 0, 1), 1), math.radians(41), math.radians(226)),  # 3
    Part.LineSegment(App.Vector(64.2, 65.8, 0), App.Vector(65.6, 64.4, 0)),  # 4
    Part.LineSegment(App.Vector(65.6, 64.4, 0), App.Vector(69.7, 68.3, 0)),  # 5
    Part.ArcOfCircle(Part.Circle(App.Vector(69, 69, 0), App.Vector(0, 0, 1), 1), math.radians(-46), math.radians(139)),  # 6
    Part.LineSegment(App.Vector(68.2, 69.7, 0), App.Vector(64.2, 65.8, 0)),  # 7
], False)
sketch8.addConstraint([
    Sketcher.Constraint("Coincident", 0, 2, 1, 1),
    Sketcher.Constraint("Coincident", 1, 2, 2, 1),
    Sketcher.Constraint("Coincident", 2, 2, 3, 1),
    Sketcher.Constraint("Tangent", 3, 2, 0, 1),
    Sketcher.Constraint("Coincident", 4, 2, 5, 1),
    Sketcher.Constraint("Tangent", 5, 2, 6, 1),
    Sketcher.Constraint("Coincident", 6, 2, 7, 1),
    Sketcher.Constraint("Coincident", 7, 2, 4, 1),
    Sketcher.Constraint("Equal", 3, 6),
    Sketcher.Constraint("Symmetric", 3, 3, 6, 3, -2),
    Sketcher.Constraint("Symmetric", 0, 2, 4, 2, -2),
    Sketcher.Constraint("Symmetric", 1, 2, 7, 2, -2),
    Sketcher.Constraint("Perpendicular", 1, 4),
    Sketcher.Constraint("Horizontal", 2, 2, 6, 2),
    Sketcher.Constraint("Radius", 3, Q("1 mm")),
    Sketcher.Constraint("DistanceX", 3, 3, -1, 1, Q("69 mm")),
    Sketcher.Constraint("DistanceY", -1, 1, 3, 3, Q("69 mm")),
    Sketcher.Constraint("DistanceX", 3, 2, 1, 2, Q("5.509698 mm")),
    Sketcher.Constraint("Distance", 1, Q("2.015369 mm")),
    Sketcher.Constraint("Distance", 2, Q("5.585079 mm")),
    Sketcher.Constraint("DistanceX", 0, 2, -1, 1, Q("65.603989 mm")),
])
sketch8.setExpression("Constraints[14]", "Params.sketch8_radius")
pocket3 = body.newObject("PartDesign::Pocket", "Pocket002")
pocket3.Profile = sketch8
pocket3.setExpression("Length", "Params.pocket3_length")

# Sketch on XY plane
sketch9 = body.newObject("Sketcher::SketchObject", "Sketch008")
sketch9.AttachmentSupport = (doc.getObject("XY_Plane"), [""])
sketch9.MapMode = "FlatFace"
sketch9.AttachmentOffset = App.Placement(App.Vector(0, 0, 18), App.Rotation())
sketch9.addGeometry([
    Part.Circle(App.Vector(-69, 69, 0), App.Vector(0, 0, 1), 1),
    Part.Circle(App.Vector(69, 69, 0), App.Vector(0, 0, 1), 1),
], False)
sketch9.addConstraint([
    Sketcher.Constraint("Equal", 0, 1),
    Sketcher.Constraint("Symmetric", 0, 3, 1, 3, -2),
    Sketcher.Constraint("Diameter", 0, Q("2 mm")),
    Sketcher.Constraint("DistanceX", 0, 3, -1, 1, Q("69 mm")),
    Sketcher.Constraint("DistanceY", -1, 1, 0, 3, Q("69 mm")),
])
sketch9.setExpression("Constraints[2]", "Params.sketch9_diameter")
pocket4 = body.newObject("PartDesign::Pocket", "Pocket003")
pocket4.Profile = sketch9
pocket4.setExpression("Length", "Params.pocket4_length")

# Sketch on XZ plane
sketch10 = body.newObject("Sketcher::SketchObject", "Sketch009")
sketch10.AttachmentSupport = (doc.getObject("XZ_Plane"), [""])
sketch10.MapMode = "FlatFace"
sketch10.AttachmentOffset = App.Placement(App.Vector(0, 0, -73.5), App.Rotation())
sketch10.addGeometry(Part.Circle(App.Vector(-48, 12, 0), App.Vector(0, 0, 1), 6), False)
sketch10.addConstraint([
    Sketcher.Constraint("Diameter", 0, Q("12 mm")),
    Sketcher.Constraint("DistanceX", 0, 3, -1, 1, Q("48 mm")),
    Sketcher.Constraint("DistanceY", -1, 1, 0, 3, Q("11.832723 mm")),
])
sketch10.setExpression("Constraints[0]", "Params.sketch10_diameter")
pocket5 = body.newObject("PartDesign::Pocket", "Pocket004")
pocket5.Profile = sketch10
pocket5.setExpression("Length", "Params.pocket5_length")
pocket5.Reversed = True

# Sketch on XZ plane
sketch11 = body.newObject("Sketcher::SketchObject", "Sketch010")
sketch11.AttachmentSupport = (doc.getObject("XZ_Plane"), [""])
sketch11.MapMode = "FlatFace"
sketch11.AttachmentOffset = App.Placement(App.Vector(0, 0, -73.5), App.Rotation())
sketch11.addGeometry([
    Part.LineSegment(App.Vector(-28, 5, 0), App.Vector(-28, 18, 0)),
    Part.LineSegment(App.Vector(-28, 18, 0), App.Vector(-8, 18, 0)),
    Part.LineSegment(App.Vector(-8, 18, 0), App.Vector(-8, 5, 0)),
    Part.LineSegment(App.Vector(-8, 5, 0), App.Vector(-28, 5, 0)),
], False)
sketch11.addConstraint([
    Sketcher.Constraint("Coincident", 0, 2, 1, 1),
    Sketcher.Constraint("Coincident", 1, 2, 2, 1),
    Sketcher.Constraint("Coincident", 2, 2, 3, 1),
    Sketcher.Constraint("Coincident", 3, 2, 0, 1),
    Sketcher.Constraint("Vertical", 0),
    Sketcher.Constraint("Horizontal", 1),
    Sketcher.Constraint("Vertical", 2),
    Sketcher.Constraint("Horizontal", 3),
    Sketcher.Constraint("DistanceX", 1, 1, 1, 2, Q("20.5 mm")),
    Sketcher.Constraint("DistanceY", 0, 1, 0, 2, Q("12.8 mm")),
    Sketcher.Constraint("DistanceX", 0, 2, -1, 1, Q("28 mm")),
    Sketcher.Constraint("DistanceY", -1, 1, 0, 2, Q("18.232723 mm")),
])
sketch11.setExpression("Constraints[8]", "Params.sketch11_width")
sketch11.setExpression("Constraints[9]", "Params.sketch11_height")
pocket6 = body.newObject("PartDesign::Pocket", "Pocket005")
pocket6.Profile = sketch11
pocket6.setExpression("Length", "Params.pocket6_length")
pocket6.Reversed = True

# Sketch on XZ plane
sketch12 = body.newObject("Sketcher::SketchObject", "Sketch011")
sketch12.AttachmentSupport = (doc.getObject("XZ_Plane"), [""])
sketch12.MapMode = "FlatFace"
sketch12.AttachmentOffset = App.Placement(App.Vector(0, 0, -73.5), App.Rotation())
sketch12.addGeometry([
    Part.LineSegment(App.Vector(-29, 4, 0), App.Vector(-29, 20, 0)),
    Part.LineSegment(App.Vector(-29, 20, 0), App.Vector(-7, 20, 0)),
    Part.LineSegment(App.Vector(-7, 20, 0), App.Vector(-7, 4, 0)),
    Part.LineSegment(App.Vector(-7, 4, 0), App.Vector(-29, 4, 0)),
], False)
sketch12.addConstraint([
    Sketcher.Constraint("Coincident", 0, 2, 1, 1),
    Sketcher.Constraint("Coincident", 1, 2, 2, 1),
    Sketcher.Constraint("Coincident", 2, 2, 3, 1),
    Sketcher.Constraint("Coincident", 3, 2, 0, 1),
    Sketcher.Constraint("Vertical", 0),
    Sketcher.Constraint("Horizontal", 1),
    Sketcher.Constraint("Vertical", 2),
    Sketcher.Constraint("Horizontal", 3),
    Sketcher.Constraint("DistanceX", 1, 1, 1, 2, Q("22 mm")),
    Sketcher.Constraint("DistanceY", 0, 1, 0, 2, Q("16 mm")),
    Sketcher.Constraint("DistanceX", 0, 2, -1, 1, Q("28.75 mm")),
    Sketcher.Constraint("DistanceY", -1, 1, 0, 2, Q("19.832723 mm")),
])
sketch12.setExpression("Constraints[8]", "Params.sketch12_width")
sketch12.setExpression("Constraints[9]", "Params.sketch12_height")
pocket7 = body.newObject("PartDesign::Pocket", "Pocket006")
pocket7.Profile = sketch12
pocket7.setExpression("Length", "Params.pocket7_length")
pocket7.Reversed = True

# Sketch on XY plane
sketch13 = body.newObject("Sketcher::SketchObject", "Sketch012")
sketch13.AttachmentSupport = (doc.getObject("XY_Plane"), [""])
sketch13.MapMode = "FlatFace"
sketch13.AttachmentOffset = App.Placement(App.Vector(0, 0, 18), App.Rotation())
sketch13.addGeometry([
    Part.LineSegment(App.Vector(-42, 28, 0), App.Vector(-42, -28, 0)),
    Part.LineSegment(App.Vector(-42, -28, 0), App.Vector(42, -28, 0)),
    Part.LineSegment(App.Vector(42, -28, 0), App.Vector(42, 28, 0)),
    Part.LineSegment(App.Vector(42, 28, 0), App.Vector(-42, 28, 0)),
], False)
sketch13.addConstraint([
    Sketcher.Constraint("Coincident", 0, 2, 1, 1),
    Sketcher.Constraint("Coincident", 1, 2, 2, 1),
    Sketcher.Constraint("Coincident", 2, 2, 3, 1),
    Sketcher.Constraint("Coincident", 3, 2, 0, 1),
    Sketcher.Constraint("Vertical", 0),
    Sketcher.Constraint("Horizontal", 1),
    Sketcher.Constraint("Vertical", 2),
    Sketcher.Constraint("Horizontal", 3),
    Sketcher.Constraint("Symmetric", 0, 2, 2, 2, -1, 1),
    Sketcher.Constraint("DistanceX", 1, 1, 1, 2, Q("84 mm")),
    Sketcher.Constraint("DistanceY", 0, 2, 0, 1, Q("56 mm")),
])
sketch13.setExpression("Constraints[9]", "Params.sketch13_width")
sketch13.setExpression("Constraints[10]", "Params.sketch13_height")
pocket8 = body.newObject("PartDesign::Pocket", "Pocket007")
pocket8.Profile = sketch13
pocket8.setExpression("Length", "Params.pocket8_length")

doc.recompute()
